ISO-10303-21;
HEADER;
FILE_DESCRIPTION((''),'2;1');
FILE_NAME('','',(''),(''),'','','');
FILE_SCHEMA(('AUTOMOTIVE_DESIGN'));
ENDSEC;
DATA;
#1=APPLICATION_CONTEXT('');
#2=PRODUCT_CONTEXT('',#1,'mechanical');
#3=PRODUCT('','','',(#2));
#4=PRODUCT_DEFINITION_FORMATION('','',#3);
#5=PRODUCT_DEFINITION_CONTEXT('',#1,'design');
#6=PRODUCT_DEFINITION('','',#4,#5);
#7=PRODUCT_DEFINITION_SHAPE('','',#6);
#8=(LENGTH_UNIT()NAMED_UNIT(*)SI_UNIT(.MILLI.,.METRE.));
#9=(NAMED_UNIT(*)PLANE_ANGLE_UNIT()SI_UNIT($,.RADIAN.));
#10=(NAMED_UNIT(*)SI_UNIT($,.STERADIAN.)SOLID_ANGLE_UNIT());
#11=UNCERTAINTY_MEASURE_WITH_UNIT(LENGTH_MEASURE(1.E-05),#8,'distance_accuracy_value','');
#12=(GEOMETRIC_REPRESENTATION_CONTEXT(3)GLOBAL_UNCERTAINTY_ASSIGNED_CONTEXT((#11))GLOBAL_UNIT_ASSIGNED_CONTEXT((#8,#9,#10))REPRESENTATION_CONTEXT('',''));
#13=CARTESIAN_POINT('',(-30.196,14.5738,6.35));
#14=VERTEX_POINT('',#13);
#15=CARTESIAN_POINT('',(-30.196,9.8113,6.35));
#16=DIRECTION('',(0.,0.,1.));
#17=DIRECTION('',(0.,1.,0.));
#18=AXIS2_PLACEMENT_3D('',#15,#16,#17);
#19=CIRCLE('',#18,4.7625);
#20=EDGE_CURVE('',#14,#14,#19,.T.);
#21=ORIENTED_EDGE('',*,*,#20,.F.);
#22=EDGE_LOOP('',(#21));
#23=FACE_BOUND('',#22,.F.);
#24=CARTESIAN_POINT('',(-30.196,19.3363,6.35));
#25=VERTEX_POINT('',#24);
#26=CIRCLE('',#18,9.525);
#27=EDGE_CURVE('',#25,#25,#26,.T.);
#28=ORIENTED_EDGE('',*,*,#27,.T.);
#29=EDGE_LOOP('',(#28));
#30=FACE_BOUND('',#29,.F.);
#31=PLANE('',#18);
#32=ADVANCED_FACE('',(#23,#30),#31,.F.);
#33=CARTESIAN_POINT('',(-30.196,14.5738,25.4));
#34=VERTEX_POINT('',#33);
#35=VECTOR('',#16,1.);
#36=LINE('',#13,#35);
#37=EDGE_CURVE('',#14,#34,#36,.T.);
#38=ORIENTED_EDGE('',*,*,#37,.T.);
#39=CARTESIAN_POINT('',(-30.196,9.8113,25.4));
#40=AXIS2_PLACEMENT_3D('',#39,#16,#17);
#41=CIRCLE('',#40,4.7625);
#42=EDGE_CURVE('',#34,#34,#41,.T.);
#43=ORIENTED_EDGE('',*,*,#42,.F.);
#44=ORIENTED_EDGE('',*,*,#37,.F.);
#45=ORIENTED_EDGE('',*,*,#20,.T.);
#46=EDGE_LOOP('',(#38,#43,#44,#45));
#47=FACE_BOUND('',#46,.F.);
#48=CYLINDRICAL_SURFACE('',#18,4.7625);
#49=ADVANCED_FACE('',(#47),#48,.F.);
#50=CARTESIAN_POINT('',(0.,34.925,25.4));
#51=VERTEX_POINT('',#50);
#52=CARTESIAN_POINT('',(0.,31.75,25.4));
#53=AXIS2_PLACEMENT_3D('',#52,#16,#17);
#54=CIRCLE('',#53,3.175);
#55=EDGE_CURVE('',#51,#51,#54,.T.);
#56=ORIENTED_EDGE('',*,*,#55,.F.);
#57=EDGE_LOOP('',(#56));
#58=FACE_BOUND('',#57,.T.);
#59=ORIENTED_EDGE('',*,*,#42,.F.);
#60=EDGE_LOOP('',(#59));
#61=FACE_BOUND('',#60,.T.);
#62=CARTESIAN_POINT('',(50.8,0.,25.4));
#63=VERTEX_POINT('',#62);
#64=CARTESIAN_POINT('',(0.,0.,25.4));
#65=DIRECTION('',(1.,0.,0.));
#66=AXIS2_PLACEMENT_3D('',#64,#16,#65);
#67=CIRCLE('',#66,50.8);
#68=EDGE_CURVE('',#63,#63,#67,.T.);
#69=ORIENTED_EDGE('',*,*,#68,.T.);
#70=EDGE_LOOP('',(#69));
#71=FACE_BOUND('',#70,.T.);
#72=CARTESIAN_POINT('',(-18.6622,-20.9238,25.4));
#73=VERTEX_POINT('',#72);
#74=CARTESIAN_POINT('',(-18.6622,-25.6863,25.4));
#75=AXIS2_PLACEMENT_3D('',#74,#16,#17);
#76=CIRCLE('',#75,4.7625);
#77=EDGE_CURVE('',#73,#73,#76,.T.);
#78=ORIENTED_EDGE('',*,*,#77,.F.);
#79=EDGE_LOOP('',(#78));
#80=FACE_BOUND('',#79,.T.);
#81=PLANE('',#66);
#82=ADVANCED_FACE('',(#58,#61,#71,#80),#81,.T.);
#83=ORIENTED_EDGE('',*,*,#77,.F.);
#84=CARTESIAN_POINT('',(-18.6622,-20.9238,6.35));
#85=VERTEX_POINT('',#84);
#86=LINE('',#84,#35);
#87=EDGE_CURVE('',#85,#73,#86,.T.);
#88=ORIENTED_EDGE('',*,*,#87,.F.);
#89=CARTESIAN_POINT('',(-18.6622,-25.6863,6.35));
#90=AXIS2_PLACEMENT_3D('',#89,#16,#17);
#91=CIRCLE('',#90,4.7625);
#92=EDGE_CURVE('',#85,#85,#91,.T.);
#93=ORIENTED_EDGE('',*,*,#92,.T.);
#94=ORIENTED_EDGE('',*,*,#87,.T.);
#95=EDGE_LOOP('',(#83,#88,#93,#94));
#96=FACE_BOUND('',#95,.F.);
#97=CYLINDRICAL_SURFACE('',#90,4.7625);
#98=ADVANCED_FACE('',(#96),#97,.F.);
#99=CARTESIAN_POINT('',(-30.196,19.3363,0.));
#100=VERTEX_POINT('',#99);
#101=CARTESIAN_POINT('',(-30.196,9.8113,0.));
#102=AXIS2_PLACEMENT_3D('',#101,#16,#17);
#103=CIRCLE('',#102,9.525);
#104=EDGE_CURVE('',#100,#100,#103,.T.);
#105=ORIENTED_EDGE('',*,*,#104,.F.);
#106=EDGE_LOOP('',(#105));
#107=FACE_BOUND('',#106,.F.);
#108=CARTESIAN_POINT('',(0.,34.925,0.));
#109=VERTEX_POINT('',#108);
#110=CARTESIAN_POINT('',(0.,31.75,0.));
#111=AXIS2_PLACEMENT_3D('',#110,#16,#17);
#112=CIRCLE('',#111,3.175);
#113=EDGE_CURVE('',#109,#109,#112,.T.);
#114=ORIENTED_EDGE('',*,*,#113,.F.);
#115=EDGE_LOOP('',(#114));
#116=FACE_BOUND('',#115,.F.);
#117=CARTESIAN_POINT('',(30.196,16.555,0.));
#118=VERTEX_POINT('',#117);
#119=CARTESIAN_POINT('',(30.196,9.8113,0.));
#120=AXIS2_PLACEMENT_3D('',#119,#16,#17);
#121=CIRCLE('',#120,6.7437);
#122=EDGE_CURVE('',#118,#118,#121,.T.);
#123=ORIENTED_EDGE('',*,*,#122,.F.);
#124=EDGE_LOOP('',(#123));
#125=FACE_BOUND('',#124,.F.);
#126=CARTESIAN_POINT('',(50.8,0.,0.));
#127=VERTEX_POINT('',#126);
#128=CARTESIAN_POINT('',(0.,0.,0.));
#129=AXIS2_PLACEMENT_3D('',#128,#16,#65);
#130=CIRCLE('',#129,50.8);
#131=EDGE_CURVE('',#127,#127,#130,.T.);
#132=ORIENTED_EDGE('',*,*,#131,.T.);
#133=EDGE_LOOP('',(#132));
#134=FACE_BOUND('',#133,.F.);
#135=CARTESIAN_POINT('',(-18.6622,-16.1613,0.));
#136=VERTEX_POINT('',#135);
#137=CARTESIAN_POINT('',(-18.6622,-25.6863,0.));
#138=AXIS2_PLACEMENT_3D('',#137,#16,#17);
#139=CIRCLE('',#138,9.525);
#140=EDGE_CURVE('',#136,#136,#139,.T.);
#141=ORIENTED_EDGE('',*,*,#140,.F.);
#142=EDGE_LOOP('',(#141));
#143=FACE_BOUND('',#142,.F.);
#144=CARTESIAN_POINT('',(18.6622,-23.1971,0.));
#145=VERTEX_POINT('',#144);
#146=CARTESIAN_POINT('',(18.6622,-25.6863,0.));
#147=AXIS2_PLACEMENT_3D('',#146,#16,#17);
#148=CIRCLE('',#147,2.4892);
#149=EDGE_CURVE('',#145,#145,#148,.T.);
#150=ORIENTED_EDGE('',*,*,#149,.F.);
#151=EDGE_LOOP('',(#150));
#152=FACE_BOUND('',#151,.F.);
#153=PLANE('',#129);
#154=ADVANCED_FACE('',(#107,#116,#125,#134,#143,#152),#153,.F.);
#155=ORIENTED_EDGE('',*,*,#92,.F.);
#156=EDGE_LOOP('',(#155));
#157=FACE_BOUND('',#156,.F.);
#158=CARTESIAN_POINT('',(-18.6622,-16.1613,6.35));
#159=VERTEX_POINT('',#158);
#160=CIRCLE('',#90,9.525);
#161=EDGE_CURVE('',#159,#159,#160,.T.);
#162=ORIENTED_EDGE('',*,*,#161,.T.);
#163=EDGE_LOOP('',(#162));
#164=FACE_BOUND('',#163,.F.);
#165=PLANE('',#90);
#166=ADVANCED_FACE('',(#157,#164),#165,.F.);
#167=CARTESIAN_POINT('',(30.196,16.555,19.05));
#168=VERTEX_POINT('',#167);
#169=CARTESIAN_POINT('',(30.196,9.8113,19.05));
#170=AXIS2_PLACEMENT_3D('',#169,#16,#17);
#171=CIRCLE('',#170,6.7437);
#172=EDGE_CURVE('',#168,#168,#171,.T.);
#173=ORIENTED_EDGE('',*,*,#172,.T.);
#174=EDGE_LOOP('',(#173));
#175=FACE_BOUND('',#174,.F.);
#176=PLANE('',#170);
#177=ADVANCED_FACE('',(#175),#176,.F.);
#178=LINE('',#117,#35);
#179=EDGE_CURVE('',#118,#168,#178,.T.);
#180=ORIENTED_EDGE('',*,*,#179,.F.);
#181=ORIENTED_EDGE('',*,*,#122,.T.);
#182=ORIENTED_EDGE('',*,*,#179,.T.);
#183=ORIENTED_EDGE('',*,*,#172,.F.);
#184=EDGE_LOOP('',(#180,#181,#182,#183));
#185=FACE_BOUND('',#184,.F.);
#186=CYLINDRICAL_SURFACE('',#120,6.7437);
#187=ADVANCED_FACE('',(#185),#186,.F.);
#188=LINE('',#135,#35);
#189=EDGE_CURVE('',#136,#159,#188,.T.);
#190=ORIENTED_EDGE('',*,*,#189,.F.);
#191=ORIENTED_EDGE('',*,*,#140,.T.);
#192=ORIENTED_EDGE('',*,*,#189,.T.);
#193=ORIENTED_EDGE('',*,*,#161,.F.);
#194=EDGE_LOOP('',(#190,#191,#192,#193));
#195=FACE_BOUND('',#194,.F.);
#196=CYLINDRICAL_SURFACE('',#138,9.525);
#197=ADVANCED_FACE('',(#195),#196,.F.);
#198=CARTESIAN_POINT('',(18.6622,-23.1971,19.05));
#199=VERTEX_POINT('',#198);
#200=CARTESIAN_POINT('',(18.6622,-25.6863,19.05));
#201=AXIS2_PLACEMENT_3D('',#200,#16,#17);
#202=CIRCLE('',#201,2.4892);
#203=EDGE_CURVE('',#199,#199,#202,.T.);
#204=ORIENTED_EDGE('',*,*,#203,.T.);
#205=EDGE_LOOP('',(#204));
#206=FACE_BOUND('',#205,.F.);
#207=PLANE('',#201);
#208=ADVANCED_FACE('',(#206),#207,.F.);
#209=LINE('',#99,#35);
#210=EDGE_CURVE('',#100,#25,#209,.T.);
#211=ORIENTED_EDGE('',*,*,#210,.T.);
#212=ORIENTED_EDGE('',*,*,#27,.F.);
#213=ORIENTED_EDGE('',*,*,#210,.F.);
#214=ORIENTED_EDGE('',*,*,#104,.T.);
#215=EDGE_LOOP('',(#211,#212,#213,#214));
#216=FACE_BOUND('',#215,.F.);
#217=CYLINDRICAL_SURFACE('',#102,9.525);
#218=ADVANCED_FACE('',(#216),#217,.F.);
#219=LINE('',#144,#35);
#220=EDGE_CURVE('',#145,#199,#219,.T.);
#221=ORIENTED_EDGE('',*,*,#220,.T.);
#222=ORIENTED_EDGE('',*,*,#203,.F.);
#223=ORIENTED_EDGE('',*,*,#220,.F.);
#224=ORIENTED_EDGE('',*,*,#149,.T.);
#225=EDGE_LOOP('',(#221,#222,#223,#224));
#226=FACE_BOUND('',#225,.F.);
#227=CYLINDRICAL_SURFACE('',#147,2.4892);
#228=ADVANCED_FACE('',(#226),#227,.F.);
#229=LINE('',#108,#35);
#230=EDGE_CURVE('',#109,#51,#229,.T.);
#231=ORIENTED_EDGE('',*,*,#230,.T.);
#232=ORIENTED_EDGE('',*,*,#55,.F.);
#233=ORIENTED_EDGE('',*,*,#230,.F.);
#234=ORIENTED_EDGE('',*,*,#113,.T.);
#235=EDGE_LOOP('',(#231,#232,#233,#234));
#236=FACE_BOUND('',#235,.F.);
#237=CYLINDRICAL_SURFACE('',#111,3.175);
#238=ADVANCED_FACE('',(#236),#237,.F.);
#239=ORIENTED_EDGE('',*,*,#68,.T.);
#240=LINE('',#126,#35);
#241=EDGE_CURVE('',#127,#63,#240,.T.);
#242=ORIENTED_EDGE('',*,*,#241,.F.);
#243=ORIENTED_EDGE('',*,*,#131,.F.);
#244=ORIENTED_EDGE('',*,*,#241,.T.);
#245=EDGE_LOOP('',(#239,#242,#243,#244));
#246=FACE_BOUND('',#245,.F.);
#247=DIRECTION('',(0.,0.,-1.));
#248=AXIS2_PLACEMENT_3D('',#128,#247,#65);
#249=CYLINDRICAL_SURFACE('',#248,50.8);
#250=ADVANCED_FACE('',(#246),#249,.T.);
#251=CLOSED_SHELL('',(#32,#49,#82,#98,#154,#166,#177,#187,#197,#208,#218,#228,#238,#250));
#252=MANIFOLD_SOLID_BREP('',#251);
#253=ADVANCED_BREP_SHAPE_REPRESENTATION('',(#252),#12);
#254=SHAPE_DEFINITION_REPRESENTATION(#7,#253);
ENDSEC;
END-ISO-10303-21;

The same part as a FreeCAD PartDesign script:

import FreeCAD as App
import Part
import Sketcher

V = App.Vector
Q = App.Units.Quantity

doc = App.newDocument("Part")
body = doc.addObject("PartDesign::Body", "Body")

# Sketch on XY plane
sketch1 = body.newObject("Sketcher::SketchObject", "Sketch")
sketch1.AttachmentSupport = (doc.getObject("XY_Plane"), [""])
sketch1.MapMode = "FlatFace"
sketch1.addGeometry(Part.Circle(V(0, 0, 0), V(0, 0, 1), 51), False)
sketch1.addConstraint([
    Sketcher.Constraint("Coincident", 0, 3, -1, 1),
    Sketcher.Constraint("Diameter", 0, Q("4 in")),
])
pad1 = body.newObject("PartDesign::Pad", "Pad")
pad1.Profile = sketch1
pad1.Length = Q("1 in")

# Sketch on XY plane
sketch2 = body.newObject("Sketcher::SketchObject", "Sketch001")
sketch2.AttachmentSupport = (doc.getObject("XY_Plane"), [""])
sketch2.MapMode = "FlatFace"
sketch2.addGeometry(Part.Circle(V(0, 31.8, 0), V(0, 0, 1), 3.2), False)
sketch2.addConstraint([
    Sketcher.Constraint("PointOnObject", 0, 3, -2),
    Sketcher.Constraint("Diameter", 0, Q("0.25 in")),
    Sketcher.Constraint("DistanceY", -1, 1, 0, 3, Q("1.25 in")),
])
doc.recompute()
hole = body.newObject("PartDesign::Hole", "Hole")
hole.Profile = sketch2
hole.ThreadType = "None"
hole.Diameter = Q("0.25 in")
hole.DepthType = "ThroughAll"
hole.Reversed = True

# Sketch on XY plane
sketch3 = body.newObject("Sketcher::SketchObject", "Sketch002")
sketch3.AttachmentSupport = (doc.getObject("XY_Plane"), [""])
sketch3.MapMode = "FlatFace"
sketch3.addGeometry([
    Part.Circle(V(-30.2, 9.8, 0), V(0, 0, 1), 4.8),
    Part.Circle(V(-18.7, -25.7, 0), V(0, 0, 1), 4.8),
], False)
sketch3.addConstraint([
    Sketcher.Constraint("Equal", 0, 1),
    Sketcher.Constraint("Diameter", 0, Q("0.375 in")),
    Sketcher.Constraint("DistanceX", 0, 3, -1, 1, 30.196),
    Sketcher.Constraint("DistanceY", -1, 1, 0, 3, 9.8113),
    Sketcher.Constraint("DistanceX", 1, 3, -1, 1, 18.6622),
    Sketcher.Constraint("DistanceY", 1, 3, -1, 1, 25.6863),
])
doc.recompute()
hole2 = body.newObject("PartDesign::Hole", "Hole001")
hole2.Profile = sketch3
hole2.ThreadType = "None"
hole2.Diameter = Q("0.375 in")
hole2.DepthType = "ThroughAll"
hole2.HoleCutType = "Counterbore"
hole2.HoleCutDiameter = Q("0.75 in")
hole2.HoleCutDepth = Q("0.25 in")
hole2.Reversed = True

# Sketch on XY plane
sketch4 = body.newObject("Sketcher::SketchObject", "Sketch003")
sketch4.AttachmentSupport = (doc.getObject("XY_Plane"), [""])
sketch4.MapMode = "FlatFace"
sketch4.addGeometry(Part.Circle(V(18.7, -25.7, 0), V(0, 0, 1), 2.5), False)
sketch4.addConstraint([
    Sketcher.Constraint("Diameter", 0, Q("0.196 in")),
    Sketcher.Constraint("DistanceX", -1, 1, 0, 3, 18.6622),
    Sketcher.Constraint("DistanceY", 0, 3, -1, 1, 25.6863),
])
doc.recompute()
hole3 = body.newObject("PartDesign::Hole", "Hole002")
hole3.Profile = sketch4
hole3.ThreadType = "None"
hole3.Diameter = Q("0.196 in")
hole3.DepthType = "Dimension"
hole3.Depth = Q("0.75 in")
hole3.DrillPoint = "Flat"
hole3.Reversed = True

# Sketch on XY plane
sketch5 = body.newObject("Sketcher::SketchObject", "Sketch004")
sketch5.AttachmentSupport = (doc.getObject("XY_Plane"), [""])
sketch5.MapMode = "FlatFace"
sketch5.addGeometry(Part.Circle(V(30, 10, 0), V(0, 0, 1), 7), False)
sketch5.addConstraint([
    Sketcher.Constraint("Diameter", 0, Q("0.531 in")),
    Sketcher.Constraint("DistanceX", -1, 1, 0, 3, 30.196),
    Sketcher.Constraint("DistanceY", -1, 1, 0, 3, 9.8113),
])
doc.recompute()
hole4 = body.newObject("PartDesign::Hole", "Hole003")
hole4.Profile = sketch5
hole4.ThreadType = "None"
hole4.Diameter = Q("0.531 in")
hole4.DepthType = "Dimension"
hole4.Depth = Q("0.75 in")
hole4.DrillPoint = "Flat"
hole4.Reversed = True

doc.recompute()
